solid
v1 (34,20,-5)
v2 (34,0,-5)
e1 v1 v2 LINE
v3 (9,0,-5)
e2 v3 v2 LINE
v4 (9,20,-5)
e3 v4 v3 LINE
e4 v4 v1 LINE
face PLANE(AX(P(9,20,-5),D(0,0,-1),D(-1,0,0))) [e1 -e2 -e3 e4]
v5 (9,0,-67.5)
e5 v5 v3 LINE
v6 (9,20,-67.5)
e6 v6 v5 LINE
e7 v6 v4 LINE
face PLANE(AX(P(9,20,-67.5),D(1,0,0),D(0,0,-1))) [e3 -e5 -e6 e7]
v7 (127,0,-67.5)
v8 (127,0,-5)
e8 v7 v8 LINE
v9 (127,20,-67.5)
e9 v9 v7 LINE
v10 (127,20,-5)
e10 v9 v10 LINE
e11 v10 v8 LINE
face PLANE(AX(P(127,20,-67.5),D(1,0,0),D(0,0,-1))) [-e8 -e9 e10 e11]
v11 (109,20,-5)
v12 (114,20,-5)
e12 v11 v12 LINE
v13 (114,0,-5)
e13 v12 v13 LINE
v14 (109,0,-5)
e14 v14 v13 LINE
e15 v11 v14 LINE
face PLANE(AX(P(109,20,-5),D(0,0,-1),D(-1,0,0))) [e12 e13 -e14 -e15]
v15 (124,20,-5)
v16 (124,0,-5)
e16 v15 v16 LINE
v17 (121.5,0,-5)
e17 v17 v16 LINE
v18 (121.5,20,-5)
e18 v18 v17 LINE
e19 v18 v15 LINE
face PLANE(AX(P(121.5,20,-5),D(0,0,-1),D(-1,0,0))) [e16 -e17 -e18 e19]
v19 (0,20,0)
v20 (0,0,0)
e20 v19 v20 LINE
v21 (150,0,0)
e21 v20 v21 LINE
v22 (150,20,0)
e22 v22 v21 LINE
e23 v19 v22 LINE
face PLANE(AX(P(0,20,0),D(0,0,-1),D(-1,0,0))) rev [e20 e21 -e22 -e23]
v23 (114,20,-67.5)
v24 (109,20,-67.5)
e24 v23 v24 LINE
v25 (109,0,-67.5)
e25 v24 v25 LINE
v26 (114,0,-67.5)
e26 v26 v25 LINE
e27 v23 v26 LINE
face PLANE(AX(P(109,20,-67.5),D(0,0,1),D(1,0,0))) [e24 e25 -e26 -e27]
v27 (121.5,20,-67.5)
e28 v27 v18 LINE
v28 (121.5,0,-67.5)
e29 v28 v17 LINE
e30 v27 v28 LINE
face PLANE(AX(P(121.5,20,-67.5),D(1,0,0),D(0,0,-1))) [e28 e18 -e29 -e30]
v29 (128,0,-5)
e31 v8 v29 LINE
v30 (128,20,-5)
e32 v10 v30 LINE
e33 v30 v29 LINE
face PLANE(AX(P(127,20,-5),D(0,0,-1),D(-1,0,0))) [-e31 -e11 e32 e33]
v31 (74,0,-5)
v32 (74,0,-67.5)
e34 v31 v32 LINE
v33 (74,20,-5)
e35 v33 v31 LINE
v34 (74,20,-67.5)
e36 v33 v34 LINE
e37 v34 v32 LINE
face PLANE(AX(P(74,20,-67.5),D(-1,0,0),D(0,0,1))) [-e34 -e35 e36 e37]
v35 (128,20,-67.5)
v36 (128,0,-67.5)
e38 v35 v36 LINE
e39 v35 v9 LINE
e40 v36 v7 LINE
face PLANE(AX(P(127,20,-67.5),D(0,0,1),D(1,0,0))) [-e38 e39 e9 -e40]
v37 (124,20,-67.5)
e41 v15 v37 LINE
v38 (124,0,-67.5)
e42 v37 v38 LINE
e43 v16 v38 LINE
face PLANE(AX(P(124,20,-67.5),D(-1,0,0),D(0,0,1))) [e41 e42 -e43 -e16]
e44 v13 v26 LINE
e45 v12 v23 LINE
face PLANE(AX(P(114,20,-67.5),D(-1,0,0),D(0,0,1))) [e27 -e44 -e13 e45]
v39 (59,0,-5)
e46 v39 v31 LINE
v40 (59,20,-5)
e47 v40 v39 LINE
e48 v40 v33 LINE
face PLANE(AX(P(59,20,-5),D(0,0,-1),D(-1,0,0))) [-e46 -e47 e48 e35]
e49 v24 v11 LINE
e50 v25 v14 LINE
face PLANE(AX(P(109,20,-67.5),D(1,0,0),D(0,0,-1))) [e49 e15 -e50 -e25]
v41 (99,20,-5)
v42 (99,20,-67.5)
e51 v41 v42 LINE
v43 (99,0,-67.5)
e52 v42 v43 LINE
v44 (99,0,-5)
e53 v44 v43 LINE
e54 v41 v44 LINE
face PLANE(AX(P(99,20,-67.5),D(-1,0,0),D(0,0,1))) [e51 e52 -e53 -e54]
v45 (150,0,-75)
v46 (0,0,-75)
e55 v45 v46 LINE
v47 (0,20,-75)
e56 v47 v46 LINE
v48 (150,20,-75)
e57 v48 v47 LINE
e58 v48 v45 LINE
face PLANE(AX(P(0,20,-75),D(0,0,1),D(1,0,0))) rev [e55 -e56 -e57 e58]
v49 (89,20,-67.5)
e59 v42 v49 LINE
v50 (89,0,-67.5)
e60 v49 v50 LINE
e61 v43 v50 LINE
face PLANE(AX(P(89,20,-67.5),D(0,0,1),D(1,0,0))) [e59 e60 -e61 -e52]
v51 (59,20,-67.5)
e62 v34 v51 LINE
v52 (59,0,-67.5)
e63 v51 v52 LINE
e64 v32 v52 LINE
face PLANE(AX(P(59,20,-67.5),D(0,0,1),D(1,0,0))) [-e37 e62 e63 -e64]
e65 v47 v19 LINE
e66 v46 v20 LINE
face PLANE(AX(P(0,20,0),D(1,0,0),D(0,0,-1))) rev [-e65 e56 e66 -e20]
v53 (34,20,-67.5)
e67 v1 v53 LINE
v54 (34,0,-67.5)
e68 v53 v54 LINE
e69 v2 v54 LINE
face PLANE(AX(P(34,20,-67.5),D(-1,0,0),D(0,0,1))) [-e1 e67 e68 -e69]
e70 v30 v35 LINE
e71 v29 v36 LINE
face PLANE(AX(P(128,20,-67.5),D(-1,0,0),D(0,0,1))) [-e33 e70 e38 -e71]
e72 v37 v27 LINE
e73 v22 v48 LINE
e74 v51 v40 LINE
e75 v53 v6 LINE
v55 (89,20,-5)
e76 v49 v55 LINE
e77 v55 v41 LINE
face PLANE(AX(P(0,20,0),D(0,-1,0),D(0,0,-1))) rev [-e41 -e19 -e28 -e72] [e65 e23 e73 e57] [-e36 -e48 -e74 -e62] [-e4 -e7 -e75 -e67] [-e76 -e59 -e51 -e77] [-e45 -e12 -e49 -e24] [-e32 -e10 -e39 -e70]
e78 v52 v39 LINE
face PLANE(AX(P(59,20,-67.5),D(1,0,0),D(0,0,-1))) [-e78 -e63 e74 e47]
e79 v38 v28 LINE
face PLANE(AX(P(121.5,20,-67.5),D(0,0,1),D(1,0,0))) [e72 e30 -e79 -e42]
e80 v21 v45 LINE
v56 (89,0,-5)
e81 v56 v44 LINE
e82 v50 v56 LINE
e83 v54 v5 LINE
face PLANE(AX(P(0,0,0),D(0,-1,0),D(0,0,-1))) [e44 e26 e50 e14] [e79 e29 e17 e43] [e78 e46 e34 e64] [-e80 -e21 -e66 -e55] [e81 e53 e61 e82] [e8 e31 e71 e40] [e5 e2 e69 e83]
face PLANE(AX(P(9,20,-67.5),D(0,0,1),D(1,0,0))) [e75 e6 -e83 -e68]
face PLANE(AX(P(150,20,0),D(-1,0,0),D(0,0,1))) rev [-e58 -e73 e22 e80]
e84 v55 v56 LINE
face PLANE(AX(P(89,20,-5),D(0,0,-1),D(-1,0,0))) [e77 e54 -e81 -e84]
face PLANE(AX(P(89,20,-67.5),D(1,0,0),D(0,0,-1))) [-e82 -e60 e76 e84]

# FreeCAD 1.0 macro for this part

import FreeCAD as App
import Part
import Sketcher


def add_polygon(sketch, points):
    """Adds a closed chain of lines whose ends are joined by coincident constraints."""
    first, n = sketch.GeometryCount, len(points)
    for a, b in zip(points, points[1:] + points[:1]):
        sketch.addGeometry(Part.LineSegment(App.Vector(*a, 0), App.Vector(*b, 0)), False)
    for i in range(n):
        sketch.addConstraint(Sketcher.Constraint("Coincident", first + i, 2, first + (i + 1) % n, 1))

doc = App.newDocument("Part")
body = doc.addObject("PartDesign::Body", "Body")

# Sketch on XZ plane
sketch1 = body.newObject("Sketcher::SketchObject", "Sketch")
sketch1.AttachmentSupport = (doc.getObject("XZ_Plane"), [""])
sketch1.MapMode = "FlatFace"
add_polygon(sketch1, [(0, -75), (0, 0), (150, 0), (150, -75)])  # lines 0-3
add_polygon(sketch1, [(34, -5), (9, -5), (9, -67.5), (34, -67.5)])  # lines 4-7
add_polygon(sketch1, [(74, -5), (59, -5), (59, -67.5), (74, -67.5)])  # lines 8-11
add_polygon(sketch1, [(99, -5), (89, -5), (89, -67.5), (99, -67.5)])  # lines 12-15
add_polygon(sketch1, [(114, -5), (109, -5), (109, -67.5), (114, -67.5)])  # lines 16-19
add_polygon(sketch1, [(124, -5), (121.5, -5), (121.5, -67.5), (124, -67.5)])  # lines 20-23
add_polygon(sketch1, [(128, -5), (127, -5), (127, -67.5), (128, -67.5)])  # lines 24-27
sketch1.addConstraint([
    Sketcher.Constraint("Vertical", 0),
    Sketcher.Constraint("Horizontal", 1),
    Sketcher.Constraint("Vertical", 2),
    Sketcher.Constraint("Horizontal", 3),
    Sketcher.Constraint("Horizontal", 4),
    Sketcher.Constraint("Vertical", 5),
    Sketcher.Constraint("Horizontal", 6),
    Sketcher.Constraint("Vertical", 7),
    Sketcher.Constraint("Horizontal", 8),
    Sketcher.Constraint("Vertical", 9),
    Sketcher.Constraint("Horizontal", 10),
    Sketcher.Constraint("Vertical", 11),
    Sketcher.Constraint("Horizontal", 12),
    Sketcher.Constraint("Vertical", 13),
    Sketcher.Constraint("Horizontal", 14),
    Sketcher.Constraint("Vertical", 15),
    Sketcher.Constraint("Horizontal", 16),
    Sketcher.Constraint("Vertical", 17),
    Sketcher.Constraint("Horizontal", 18),
    Sketcher.Constraint("Vertical", 19),
    Sketcher.Constraint("Horizontal", 20),
    Sketcher.Constraint("Vertical", 21),
    Sketcher.Constraint("Horizontal", 22),
    Sketcher.Constraint("Vertical", 23),
    Sketcher.Constraint("Horizontal", 24),
    Sketcher.Constraint("Vertical", 25),
    Sketcher.Constraint("Horizontal", 26),
    Sketcher.Constraint("Vertical", 27),
    Sketcher.Constraint("Coincident", 0, 2, -1, 1),
    Sketcher.Constraint("Horizontal", 7, 2, 8, 2),
    Sketcher.Constraint("Horizontal", 6, 2, 9, 2),
    Sketcher.Constraint("Horizontal", 11, 2, 12, 2),
    Sketcher.Constraint("Horizontal", 10, 2, 13, 2),
    Sketcher.Constraint("Horizontal", 15, 2, 16, 2),
    Sketcher.Constraint("Horizontal", 14, 2, 17, 2),
    Sketcher.Constraint("Horizontal", 19, 2, 20, 2),
    Sketcher.Constraint("Horizontal", 18, 2, 21, 2),
    Sketcher.Constraint("Horizontal", 23, 2, 24, 2),
    Sketcher.Constraint("Horizontal", 22, 2, 25, 2),
    Sketcher.Constraint("DistanceX", 1, 1, 1, 2, 150.0),
    Sketcher.Constraint("DistanceX", 4, 2, 4, 1, 25.0),
    Sketcher.Constraint("DistanceX", 8, 2, 8, 1, 15.0),
    Sketcher.Constraint("DistanceX", 12, 2, 12, 1, 10.0),
    Sketcher.Constraint("DistanceX", 16, 2, 16, 1, 5.0),
    Sketcher.Constraint("DistanceX", 24, 2, 24, 1, 1.0),
    Sketcher.Constraint("DistanceY", 0, 1, 0, 2, 75.0),
    Sketcher.Constraint("DistanceX", 20, 2, 20, 1, 2.5),
    Sketcher.Constraint("DistanceY", 5, 2, 5, 1, 62.5),
    Sketcher.Constraint("DistanceX", -1, 1, 4, 2, 9.0),
    Sketcher.Constraint("DistanceY", 4, 2, -1, 1, 5.0),
    Sketcher.Constraint("DistanceX", -1, 1, 8, 2, 59.0),
    Sketcher.Constraint("DistanceX", -1, 1, 12, 2, 89.0),
    Sketcher.Constraint("DistanceX", -1, 1, 16, 2, 109.0),
    Sketcher.Constraint("DistanceX", -1, 1, 22, 2, 124.0),
    Sketcher.Constraint("DistanceX", -1, 1, 24, 2, 127.0),
])
pad1 = body.newObject("PartDesign::Pad", "Pad")
pad1.Profile = sketch1
pad1.Length = 20
pad1.Reversed = True

doc.recompute()
